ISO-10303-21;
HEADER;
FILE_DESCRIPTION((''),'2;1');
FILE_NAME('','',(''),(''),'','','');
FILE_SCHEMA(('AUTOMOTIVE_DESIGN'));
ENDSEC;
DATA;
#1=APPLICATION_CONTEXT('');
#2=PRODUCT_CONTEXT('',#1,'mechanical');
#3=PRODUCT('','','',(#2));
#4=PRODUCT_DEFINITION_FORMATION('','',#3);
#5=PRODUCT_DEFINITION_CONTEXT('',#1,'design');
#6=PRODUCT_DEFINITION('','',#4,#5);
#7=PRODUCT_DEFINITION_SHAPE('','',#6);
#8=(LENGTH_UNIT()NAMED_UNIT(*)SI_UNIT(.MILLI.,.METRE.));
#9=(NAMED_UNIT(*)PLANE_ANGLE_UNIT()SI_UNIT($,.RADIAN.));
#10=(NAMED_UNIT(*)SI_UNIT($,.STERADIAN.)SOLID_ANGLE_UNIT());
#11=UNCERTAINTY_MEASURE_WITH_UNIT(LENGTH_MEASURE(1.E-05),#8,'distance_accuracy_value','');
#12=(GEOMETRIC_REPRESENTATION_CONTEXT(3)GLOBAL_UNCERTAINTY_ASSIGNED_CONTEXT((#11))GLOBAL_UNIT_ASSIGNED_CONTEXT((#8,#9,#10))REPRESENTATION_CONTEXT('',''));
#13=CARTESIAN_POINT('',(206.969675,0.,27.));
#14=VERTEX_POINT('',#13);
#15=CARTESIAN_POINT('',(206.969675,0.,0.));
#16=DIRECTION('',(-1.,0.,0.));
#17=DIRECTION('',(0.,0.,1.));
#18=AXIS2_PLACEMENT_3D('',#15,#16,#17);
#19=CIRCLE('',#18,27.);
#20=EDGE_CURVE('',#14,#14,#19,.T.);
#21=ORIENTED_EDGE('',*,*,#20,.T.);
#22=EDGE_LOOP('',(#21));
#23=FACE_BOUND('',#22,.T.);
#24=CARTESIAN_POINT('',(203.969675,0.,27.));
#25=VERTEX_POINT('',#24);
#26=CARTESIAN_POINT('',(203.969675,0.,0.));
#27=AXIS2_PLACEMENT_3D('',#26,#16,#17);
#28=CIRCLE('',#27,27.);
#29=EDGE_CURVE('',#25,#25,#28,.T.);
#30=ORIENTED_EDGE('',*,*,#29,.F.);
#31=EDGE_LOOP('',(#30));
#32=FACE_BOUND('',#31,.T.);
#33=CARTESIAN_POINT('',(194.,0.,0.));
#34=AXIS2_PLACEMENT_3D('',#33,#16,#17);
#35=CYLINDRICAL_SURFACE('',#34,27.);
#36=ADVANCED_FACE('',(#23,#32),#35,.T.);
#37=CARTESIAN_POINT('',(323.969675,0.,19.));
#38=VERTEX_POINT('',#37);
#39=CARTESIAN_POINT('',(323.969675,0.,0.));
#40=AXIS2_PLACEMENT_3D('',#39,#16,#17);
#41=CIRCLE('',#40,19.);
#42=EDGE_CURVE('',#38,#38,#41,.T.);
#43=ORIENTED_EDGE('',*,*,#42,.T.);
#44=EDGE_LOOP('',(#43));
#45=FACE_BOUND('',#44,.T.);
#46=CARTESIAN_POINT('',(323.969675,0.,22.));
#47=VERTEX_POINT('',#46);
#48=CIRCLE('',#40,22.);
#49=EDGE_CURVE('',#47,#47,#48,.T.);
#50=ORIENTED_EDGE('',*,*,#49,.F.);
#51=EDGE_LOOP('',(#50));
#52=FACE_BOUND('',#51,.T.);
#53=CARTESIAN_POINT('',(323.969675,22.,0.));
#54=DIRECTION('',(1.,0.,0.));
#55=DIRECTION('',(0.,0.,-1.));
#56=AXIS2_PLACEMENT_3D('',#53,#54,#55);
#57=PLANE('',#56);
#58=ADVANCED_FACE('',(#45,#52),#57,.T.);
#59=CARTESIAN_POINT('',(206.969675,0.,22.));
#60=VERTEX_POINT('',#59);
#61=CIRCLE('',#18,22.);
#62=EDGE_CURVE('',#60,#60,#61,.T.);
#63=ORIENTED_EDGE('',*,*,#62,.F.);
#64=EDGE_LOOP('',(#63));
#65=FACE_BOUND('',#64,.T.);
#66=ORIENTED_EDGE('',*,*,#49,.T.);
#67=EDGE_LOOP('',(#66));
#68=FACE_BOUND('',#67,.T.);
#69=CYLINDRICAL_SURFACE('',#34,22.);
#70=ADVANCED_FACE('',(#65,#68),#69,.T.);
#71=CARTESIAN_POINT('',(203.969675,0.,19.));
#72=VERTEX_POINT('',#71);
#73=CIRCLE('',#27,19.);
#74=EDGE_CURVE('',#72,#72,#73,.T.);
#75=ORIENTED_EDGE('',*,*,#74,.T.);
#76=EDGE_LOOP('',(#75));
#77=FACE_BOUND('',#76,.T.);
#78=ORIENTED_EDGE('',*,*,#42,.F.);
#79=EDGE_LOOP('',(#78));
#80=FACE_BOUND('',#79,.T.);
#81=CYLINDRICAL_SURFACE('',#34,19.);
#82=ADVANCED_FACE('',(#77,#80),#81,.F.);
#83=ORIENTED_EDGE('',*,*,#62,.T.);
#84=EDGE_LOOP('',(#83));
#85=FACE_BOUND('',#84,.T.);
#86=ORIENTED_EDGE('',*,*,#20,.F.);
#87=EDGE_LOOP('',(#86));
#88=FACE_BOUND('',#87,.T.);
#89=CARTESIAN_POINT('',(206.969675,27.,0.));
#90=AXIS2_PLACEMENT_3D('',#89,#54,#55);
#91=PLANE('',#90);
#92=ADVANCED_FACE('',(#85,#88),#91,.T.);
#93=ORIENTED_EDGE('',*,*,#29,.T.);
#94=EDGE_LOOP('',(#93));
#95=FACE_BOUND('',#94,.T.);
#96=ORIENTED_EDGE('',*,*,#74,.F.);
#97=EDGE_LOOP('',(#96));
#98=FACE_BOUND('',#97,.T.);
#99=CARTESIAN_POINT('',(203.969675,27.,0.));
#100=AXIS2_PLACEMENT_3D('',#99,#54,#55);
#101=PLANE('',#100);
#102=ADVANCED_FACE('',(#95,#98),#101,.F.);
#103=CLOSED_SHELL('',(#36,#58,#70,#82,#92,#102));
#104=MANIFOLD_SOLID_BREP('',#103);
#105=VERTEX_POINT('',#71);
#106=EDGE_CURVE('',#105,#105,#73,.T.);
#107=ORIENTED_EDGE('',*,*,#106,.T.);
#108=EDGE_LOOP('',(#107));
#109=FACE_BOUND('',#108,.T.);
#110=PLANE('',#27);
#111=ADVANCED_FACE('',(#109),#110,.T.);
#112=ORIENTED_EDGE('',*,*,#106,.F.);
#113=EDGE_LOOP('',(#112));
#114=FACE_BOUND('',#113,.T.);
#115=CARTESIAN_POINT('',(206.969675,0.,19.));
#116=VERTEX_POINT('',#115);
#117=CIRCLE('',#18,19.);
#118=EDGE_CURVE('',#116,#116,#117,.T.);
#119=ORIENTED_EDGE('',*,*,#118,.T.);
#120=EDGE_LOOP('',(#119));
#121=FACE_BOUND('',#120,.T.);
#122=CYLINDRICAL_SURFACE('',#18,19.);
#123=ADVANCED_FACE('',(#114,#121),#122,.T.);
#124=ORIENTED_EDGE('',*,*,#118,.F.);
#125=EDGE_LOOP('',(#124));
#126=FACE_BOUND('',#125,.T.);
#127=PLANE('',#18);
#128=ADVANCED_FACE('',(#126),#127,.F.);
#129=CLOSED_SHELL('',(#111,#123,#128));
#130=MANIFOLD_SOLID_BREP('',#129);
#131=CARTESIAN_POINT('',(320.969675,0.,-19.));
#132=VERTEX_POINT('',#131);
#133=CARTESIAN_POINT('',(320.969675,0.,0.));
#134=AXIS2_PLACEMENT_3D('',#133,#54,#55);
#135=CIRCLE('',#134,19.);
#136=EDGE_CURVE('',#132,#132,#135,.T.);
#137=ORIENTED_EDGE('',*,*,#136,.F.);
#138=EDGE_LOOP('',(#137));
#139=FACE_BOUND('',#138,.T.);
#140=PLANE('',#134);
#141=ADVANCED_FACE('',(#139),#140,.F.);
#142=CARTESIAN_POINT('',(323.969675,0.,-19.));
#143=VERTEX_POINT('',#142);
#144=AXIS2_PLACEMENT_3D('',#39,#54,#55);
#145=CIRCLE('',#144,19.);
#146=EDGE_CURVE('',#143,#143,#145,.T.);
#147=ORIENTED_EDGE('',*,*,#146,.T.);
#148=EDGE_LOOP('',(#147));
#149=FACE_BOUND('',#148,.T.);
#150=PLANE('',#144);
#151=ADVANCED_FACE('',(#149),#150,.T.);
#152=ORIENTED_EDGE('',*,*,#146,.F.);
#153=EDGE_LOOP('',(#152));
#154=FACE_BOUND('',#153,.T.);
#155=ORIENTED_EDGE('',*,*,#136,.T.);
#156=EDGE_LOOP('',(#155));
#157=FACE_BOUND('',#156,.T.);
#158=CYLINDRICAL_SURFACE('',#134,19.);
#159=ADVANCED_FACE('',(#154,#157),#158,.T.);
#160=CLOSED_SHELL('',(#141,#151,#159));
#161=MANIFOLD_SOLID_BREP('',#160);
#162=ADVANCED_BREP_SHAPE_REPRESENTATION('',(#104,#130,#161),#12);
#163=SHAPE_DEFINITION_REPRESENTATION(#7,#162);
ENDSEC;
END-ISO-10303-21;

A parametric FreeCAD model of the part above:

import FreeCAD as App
import Part
import Sketcher

doc = App.newDocument("Part")
body = doc.addObject("PartDesign::Body", "Body")

# Sketch on XY plane
sketch1 = body.newObject("Sketcher::SketchObject", "Sketch")
sketch1.AttachmentSupport = (doc.getObject("XY_Plane"), [""])
sketch1.MapMode = "FlatFace"
sketch1.addGeometry(Part.LineSegment(App.Vector(204, 27, 0), App.Vector(204, 19, 0)), False)
sketch1.addGeometry(Part.LineSegment(App.Vector(204, 19, 0), App.Vector(324, 19, 0)), False)
sketch1.addGeometry(Part.LineSegment(App.Vector(324, 19, 0), App.Vector(324, 22, 0)), False)
sketch1.addGeometry(Part.LineSegment(App.Vector(324, 22, 0), App.Vector(207, 22, 0)), False)
sketch1.addGeometry(Part.LineSegment(App.Vector(207, 22, 0), App.Vector(207, 27, 0)), False)
sketch1.addGeometry(Part.LineSegment(App.Vector(207, 27, 0), App.Vector(204, 27, 0)), False)
sketch1.addConstraint(Sketcher.Constraint("Coincident", 0, 2, 1, 1))
sketch1.addConstraint(Sketcher.Constraint("Coincident", 1, 2, 2, 1))
sketch1.addConstraint(Sketcher.Constraint("Coincident", 2, 2, 3, 1))
sketch1.addConstraint(Sketcher.Constraint("Coincident", 3, 2, 4, 1))
sketch1.addConstraint(Sketcher.Constraint("Coincident", 4, 2, 5, 1))
sketch1.addConstraint(Sketcher.Constraint("Coincident", 5, 2, 0, 1))
sketch1.addConstraint(Sketcher.Constraint("Vertical", 0))
sketch1.addConstraint(Sketcher.Constraint("Horizontal", 1))
sketch1.addConstraint(Sketcher.Constraint("Vertical", 2))
sketch1.addConstraint(Sketcher.Constraint("Horizontal", 3))
sketch1.addConstraint(Sketcher.Constraint("Vertical", 4))
sketch1.addConstraint(Sketcher.Constraint("Horizontal", 5))
sketch1.addConstraint(Sketcher.Constraint("Equal", 5, 2))
sketch1.addConstraint(Sketcher.Constraint("DistanceX", 1, 1, 1, 2, 120.0))
sketch1.addConstraint(Sketcher.Constraint("DistanceX", 3, 2, 3, 1, 117.0))
sketch1.addConstraint(Sketcher.Constraint("DistanceY", 0, 2, 0, 1, 8.0))
sketch1.addConstraint(Sketcher.Constraint("DistanceY", -1, 1, 0, 2, 19.0))
sketch1.addConstraint(Sketcher.Constraint("DistanceX", -1, 1, 0, 2, 203.969675))
revolution = body.newObject("PartDesign::Revolution", "Revolution")
revolution.Profile = sketch1
revolution.ReferenceAxis = (sketch1, ["H_Axis"])
revolution.Angle = 360
body2 = doc.addObject("PartDesign::Body", "Body001")

# Sketch on YZ plane
sketch2 = body2.newObject("Sketcher::SketchObject", "Sketch001")
sketch2.AttachmentSupport = (doc.getObject("YZ_Plane001"), [""])
sketch2.MapMode = "FlatFace"
sketch2.AttachmentOffset = App.Placement(App.Vector(0, 0, 203.969675), App.Rotation())
sketch2.addGeometry(Part.Circle(App.Vector(0, 0, 0), App.Vector(0, 0, 1), 19), False)
sketch2.addConstraint(Sketcher.Constraint("Coincident", 0, 3, -1, 1))
sketch2.addConstraint(Sketcher.Constraint("Diameter", 0, 38.0))
pad1 = body2.newObject("PartDesign::Pad", "Pad")
pad1.Profile = sketch2
pad1.Length = 3
body3 = doc.addObject("PartDesign::Body", "Body002")

# Sketch on YZ plane
sketch3 = body3.newObject("Sketcher::SketchObject", "Sketch002")
sketch3.AttachmentSupport = (doc.getObject("YZ_Plane002"), [""])
sketch3.MapMode = "FlatFace"
sketch3.AttachmentOffset = App.Placement(App.Vector(0, 0, 323.969675), App.Rotation())
sketch3.addGeometry(Part.Circle(App.Vector(0, 0, 0), App.Vector(0, 0, 1), 19), False)
sketch3.addConstraint(Sketcher.Constraint("Coincident", 0, 3, -1, 1))
sketch3.addConstraint(Sketcher.Constraint("Diameter", 0, 38.0))
pad2 = body3.newObject("PartDesign::Pad", "Pad001")
pad2.Profile = sketch3
pad2.Length = 3
pad2.Reversed = True

doc.recompute()
